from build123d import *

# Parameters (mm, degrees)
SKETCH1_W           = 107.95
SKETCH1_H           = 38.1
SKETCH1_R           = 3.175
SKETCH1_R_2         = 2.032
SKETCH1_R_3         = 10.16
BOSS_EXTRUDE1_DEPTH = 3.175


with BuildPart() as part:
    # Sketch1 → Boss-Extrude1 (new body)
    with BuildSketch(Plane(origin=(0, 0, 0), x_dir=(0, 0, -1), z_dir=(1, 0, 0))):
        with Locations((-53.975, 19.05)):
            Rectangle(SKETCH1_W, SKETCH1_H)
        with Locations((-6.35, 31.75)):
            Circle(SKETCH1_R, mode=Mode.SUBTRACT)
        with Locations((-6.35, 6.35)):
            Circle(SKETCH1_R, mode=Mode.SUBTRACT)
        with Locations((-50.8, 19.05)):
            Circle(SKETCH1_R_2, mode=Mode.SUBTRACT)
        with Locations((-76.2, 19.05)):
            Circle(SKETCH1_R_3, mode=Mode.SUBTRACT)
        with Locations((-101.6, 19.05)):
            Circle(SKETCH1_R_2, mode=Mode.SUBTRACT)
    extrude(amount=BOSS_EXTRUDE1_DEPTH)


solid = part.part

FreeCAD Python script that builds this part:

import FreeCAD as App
import Part
import Sketcher

V = App.Vector
Q = App.Units.Quantity

doc = App.newDocument("Part")
body = doc.addObject("PartDesign::Body", "Body")

sketch1 = body.newObject("Sketcher::SketchObject", "Sketch")
sketch1.AttachmentSupport = (doc.getObject("YZ_Plane"), [""])
sketch1.MapMode = "FlatFace"
sketch1.addGeometry(Part.LineSegment(V(38.1, 107.95, 0), V(0, 107.95, 0)), False)
sketch1.addGeometry(Part.LineSegment(V(0, 107.95, 0), V(0, 0, 0)), False)
sketch1.addGeometry(Part.LineSegment(V(0, 0, 0), V(38.1, 0, 0)), False)
sketch1.addGeometry(Part.LineSegment(V(38.1, 0, 0), V(38.1, 107.95, 0)), False)
sketch1.addGeometry(Part.Circle(V(6.35, 6.35, 0), V(0, 0, 1), 3.175), False)
sketch1.addGeometry(Part.Circle(V(19.05, 101.6, 0), V(0, 0, 1), 2.032), False)
sketch1.addGeometry(Part.Circle(V(19.05, 76.2, 0), V(0, 0, 1), 10.16), False)
sketch1.addGeometry(Part.Circle(V(19.05, 50.8, 0), V(0, 0, 1), 2.032), False)
sketch1.addGeometry(Part.Circle(V(31.75, 6.35, 0), V(0, 0, 1), 3.175), False)
sketch1.addConstraint(Sketcher.Constraint("Coincident", 0, 2, 1, 1))
sketch1.addConstraint(Sketcher.Constraint("Coincident", 1, 2, 2, 1))
sketch1.addConstraint(Sketcher.Constraint("Coincident", 2, 2, 3, 1))
sketch1.addConstraint(Sketcher.Constraint("Coincident", 3, 2, 0, 1))
sketch1.addConstraint(Sketcher.Constraint("Horizontal", 0))
sketch1.addConstraint(Sketcher.Constraint("Vertical", 1))
sketch1.addConstraint(Sketcher.Constraint("Horizontal", 2))
sketch1.addConstraint(Sketcher.Constraint("Vertical", 3))
sketch1.addConstraint(Sketcher.Constraint("Coincident", 1, 2, -1, 1))
sketch1.addConstraint(Sketcher.Constraint("Equal", 5, 7))
sketch1.addConstraint(Sketcher.Constraint("Equal", 4, 8))
sketch1.addConstraint(Sketcher.Constraint("Horizontal", 4, 3, 8, 3))
sketch1.addConstraint(Sketcher.Constraint("Vertical", 5, 3, 6, 3))
sketch1.addConstraint(Sketcher.Constraint("Vertical", 6, 3, 7, 3))
sketch1.addConstraint(Sketcher.Constraint("Diameter", 6, Q("0.8 in")))
sketch1.addConstraint(Sketcher.Constraint("Diameter", 4, Q("0.25 in")))
sketch1.addConstraint(Sketcher.Constraint("Diameter", 5, Q("0.16 in")))
sketch1.addConstraint(Sketcher.Constraint("DistanceX", 0, 2, 0, 1, Q("1.5 in")))
sketch1.addConstraint(Sketcher.Constraint("DistanceY", -1, 1, 5, 3, Q("4 in")))
sketch1.addConstraint(Sketcher.Constraint("DistanceY", -1, 1, 6, 3, Q("3 in")))
sketch1.addConstraint(Sketcher.Constraint("DistanceY", -1, 1, 7, 3, Q("2 in")))
sketch1.addConstraint(Sketcher.Constraint("DistanceX", 4, 3, 8, 3, Q("1 in")))
sketch1.addConstraint(Sketcher.Constraint("DistanceY", 4, 3, 0, 2, Q("4 in")))
sketch1.addConstraint(Sketcher.Constraint("DistanceY", 1, 2, 1, 1, Q("4.25 in")))
sketch1.addConstraint(Sketcher.Constraint("DistanceX", 4, 3, 5, 3, Q("0.5 in")))
sketch1.addConstraint(Sketcher.Constraint("DistanceX", -1, 1, 4, 3, Q("0.25 in")))
pad1 = body.newObject("PartDesign::Pad", "Pad")
pad1.Profile = sketch1
pad1.Length = Q("0.125 in")

doc.recompute()
